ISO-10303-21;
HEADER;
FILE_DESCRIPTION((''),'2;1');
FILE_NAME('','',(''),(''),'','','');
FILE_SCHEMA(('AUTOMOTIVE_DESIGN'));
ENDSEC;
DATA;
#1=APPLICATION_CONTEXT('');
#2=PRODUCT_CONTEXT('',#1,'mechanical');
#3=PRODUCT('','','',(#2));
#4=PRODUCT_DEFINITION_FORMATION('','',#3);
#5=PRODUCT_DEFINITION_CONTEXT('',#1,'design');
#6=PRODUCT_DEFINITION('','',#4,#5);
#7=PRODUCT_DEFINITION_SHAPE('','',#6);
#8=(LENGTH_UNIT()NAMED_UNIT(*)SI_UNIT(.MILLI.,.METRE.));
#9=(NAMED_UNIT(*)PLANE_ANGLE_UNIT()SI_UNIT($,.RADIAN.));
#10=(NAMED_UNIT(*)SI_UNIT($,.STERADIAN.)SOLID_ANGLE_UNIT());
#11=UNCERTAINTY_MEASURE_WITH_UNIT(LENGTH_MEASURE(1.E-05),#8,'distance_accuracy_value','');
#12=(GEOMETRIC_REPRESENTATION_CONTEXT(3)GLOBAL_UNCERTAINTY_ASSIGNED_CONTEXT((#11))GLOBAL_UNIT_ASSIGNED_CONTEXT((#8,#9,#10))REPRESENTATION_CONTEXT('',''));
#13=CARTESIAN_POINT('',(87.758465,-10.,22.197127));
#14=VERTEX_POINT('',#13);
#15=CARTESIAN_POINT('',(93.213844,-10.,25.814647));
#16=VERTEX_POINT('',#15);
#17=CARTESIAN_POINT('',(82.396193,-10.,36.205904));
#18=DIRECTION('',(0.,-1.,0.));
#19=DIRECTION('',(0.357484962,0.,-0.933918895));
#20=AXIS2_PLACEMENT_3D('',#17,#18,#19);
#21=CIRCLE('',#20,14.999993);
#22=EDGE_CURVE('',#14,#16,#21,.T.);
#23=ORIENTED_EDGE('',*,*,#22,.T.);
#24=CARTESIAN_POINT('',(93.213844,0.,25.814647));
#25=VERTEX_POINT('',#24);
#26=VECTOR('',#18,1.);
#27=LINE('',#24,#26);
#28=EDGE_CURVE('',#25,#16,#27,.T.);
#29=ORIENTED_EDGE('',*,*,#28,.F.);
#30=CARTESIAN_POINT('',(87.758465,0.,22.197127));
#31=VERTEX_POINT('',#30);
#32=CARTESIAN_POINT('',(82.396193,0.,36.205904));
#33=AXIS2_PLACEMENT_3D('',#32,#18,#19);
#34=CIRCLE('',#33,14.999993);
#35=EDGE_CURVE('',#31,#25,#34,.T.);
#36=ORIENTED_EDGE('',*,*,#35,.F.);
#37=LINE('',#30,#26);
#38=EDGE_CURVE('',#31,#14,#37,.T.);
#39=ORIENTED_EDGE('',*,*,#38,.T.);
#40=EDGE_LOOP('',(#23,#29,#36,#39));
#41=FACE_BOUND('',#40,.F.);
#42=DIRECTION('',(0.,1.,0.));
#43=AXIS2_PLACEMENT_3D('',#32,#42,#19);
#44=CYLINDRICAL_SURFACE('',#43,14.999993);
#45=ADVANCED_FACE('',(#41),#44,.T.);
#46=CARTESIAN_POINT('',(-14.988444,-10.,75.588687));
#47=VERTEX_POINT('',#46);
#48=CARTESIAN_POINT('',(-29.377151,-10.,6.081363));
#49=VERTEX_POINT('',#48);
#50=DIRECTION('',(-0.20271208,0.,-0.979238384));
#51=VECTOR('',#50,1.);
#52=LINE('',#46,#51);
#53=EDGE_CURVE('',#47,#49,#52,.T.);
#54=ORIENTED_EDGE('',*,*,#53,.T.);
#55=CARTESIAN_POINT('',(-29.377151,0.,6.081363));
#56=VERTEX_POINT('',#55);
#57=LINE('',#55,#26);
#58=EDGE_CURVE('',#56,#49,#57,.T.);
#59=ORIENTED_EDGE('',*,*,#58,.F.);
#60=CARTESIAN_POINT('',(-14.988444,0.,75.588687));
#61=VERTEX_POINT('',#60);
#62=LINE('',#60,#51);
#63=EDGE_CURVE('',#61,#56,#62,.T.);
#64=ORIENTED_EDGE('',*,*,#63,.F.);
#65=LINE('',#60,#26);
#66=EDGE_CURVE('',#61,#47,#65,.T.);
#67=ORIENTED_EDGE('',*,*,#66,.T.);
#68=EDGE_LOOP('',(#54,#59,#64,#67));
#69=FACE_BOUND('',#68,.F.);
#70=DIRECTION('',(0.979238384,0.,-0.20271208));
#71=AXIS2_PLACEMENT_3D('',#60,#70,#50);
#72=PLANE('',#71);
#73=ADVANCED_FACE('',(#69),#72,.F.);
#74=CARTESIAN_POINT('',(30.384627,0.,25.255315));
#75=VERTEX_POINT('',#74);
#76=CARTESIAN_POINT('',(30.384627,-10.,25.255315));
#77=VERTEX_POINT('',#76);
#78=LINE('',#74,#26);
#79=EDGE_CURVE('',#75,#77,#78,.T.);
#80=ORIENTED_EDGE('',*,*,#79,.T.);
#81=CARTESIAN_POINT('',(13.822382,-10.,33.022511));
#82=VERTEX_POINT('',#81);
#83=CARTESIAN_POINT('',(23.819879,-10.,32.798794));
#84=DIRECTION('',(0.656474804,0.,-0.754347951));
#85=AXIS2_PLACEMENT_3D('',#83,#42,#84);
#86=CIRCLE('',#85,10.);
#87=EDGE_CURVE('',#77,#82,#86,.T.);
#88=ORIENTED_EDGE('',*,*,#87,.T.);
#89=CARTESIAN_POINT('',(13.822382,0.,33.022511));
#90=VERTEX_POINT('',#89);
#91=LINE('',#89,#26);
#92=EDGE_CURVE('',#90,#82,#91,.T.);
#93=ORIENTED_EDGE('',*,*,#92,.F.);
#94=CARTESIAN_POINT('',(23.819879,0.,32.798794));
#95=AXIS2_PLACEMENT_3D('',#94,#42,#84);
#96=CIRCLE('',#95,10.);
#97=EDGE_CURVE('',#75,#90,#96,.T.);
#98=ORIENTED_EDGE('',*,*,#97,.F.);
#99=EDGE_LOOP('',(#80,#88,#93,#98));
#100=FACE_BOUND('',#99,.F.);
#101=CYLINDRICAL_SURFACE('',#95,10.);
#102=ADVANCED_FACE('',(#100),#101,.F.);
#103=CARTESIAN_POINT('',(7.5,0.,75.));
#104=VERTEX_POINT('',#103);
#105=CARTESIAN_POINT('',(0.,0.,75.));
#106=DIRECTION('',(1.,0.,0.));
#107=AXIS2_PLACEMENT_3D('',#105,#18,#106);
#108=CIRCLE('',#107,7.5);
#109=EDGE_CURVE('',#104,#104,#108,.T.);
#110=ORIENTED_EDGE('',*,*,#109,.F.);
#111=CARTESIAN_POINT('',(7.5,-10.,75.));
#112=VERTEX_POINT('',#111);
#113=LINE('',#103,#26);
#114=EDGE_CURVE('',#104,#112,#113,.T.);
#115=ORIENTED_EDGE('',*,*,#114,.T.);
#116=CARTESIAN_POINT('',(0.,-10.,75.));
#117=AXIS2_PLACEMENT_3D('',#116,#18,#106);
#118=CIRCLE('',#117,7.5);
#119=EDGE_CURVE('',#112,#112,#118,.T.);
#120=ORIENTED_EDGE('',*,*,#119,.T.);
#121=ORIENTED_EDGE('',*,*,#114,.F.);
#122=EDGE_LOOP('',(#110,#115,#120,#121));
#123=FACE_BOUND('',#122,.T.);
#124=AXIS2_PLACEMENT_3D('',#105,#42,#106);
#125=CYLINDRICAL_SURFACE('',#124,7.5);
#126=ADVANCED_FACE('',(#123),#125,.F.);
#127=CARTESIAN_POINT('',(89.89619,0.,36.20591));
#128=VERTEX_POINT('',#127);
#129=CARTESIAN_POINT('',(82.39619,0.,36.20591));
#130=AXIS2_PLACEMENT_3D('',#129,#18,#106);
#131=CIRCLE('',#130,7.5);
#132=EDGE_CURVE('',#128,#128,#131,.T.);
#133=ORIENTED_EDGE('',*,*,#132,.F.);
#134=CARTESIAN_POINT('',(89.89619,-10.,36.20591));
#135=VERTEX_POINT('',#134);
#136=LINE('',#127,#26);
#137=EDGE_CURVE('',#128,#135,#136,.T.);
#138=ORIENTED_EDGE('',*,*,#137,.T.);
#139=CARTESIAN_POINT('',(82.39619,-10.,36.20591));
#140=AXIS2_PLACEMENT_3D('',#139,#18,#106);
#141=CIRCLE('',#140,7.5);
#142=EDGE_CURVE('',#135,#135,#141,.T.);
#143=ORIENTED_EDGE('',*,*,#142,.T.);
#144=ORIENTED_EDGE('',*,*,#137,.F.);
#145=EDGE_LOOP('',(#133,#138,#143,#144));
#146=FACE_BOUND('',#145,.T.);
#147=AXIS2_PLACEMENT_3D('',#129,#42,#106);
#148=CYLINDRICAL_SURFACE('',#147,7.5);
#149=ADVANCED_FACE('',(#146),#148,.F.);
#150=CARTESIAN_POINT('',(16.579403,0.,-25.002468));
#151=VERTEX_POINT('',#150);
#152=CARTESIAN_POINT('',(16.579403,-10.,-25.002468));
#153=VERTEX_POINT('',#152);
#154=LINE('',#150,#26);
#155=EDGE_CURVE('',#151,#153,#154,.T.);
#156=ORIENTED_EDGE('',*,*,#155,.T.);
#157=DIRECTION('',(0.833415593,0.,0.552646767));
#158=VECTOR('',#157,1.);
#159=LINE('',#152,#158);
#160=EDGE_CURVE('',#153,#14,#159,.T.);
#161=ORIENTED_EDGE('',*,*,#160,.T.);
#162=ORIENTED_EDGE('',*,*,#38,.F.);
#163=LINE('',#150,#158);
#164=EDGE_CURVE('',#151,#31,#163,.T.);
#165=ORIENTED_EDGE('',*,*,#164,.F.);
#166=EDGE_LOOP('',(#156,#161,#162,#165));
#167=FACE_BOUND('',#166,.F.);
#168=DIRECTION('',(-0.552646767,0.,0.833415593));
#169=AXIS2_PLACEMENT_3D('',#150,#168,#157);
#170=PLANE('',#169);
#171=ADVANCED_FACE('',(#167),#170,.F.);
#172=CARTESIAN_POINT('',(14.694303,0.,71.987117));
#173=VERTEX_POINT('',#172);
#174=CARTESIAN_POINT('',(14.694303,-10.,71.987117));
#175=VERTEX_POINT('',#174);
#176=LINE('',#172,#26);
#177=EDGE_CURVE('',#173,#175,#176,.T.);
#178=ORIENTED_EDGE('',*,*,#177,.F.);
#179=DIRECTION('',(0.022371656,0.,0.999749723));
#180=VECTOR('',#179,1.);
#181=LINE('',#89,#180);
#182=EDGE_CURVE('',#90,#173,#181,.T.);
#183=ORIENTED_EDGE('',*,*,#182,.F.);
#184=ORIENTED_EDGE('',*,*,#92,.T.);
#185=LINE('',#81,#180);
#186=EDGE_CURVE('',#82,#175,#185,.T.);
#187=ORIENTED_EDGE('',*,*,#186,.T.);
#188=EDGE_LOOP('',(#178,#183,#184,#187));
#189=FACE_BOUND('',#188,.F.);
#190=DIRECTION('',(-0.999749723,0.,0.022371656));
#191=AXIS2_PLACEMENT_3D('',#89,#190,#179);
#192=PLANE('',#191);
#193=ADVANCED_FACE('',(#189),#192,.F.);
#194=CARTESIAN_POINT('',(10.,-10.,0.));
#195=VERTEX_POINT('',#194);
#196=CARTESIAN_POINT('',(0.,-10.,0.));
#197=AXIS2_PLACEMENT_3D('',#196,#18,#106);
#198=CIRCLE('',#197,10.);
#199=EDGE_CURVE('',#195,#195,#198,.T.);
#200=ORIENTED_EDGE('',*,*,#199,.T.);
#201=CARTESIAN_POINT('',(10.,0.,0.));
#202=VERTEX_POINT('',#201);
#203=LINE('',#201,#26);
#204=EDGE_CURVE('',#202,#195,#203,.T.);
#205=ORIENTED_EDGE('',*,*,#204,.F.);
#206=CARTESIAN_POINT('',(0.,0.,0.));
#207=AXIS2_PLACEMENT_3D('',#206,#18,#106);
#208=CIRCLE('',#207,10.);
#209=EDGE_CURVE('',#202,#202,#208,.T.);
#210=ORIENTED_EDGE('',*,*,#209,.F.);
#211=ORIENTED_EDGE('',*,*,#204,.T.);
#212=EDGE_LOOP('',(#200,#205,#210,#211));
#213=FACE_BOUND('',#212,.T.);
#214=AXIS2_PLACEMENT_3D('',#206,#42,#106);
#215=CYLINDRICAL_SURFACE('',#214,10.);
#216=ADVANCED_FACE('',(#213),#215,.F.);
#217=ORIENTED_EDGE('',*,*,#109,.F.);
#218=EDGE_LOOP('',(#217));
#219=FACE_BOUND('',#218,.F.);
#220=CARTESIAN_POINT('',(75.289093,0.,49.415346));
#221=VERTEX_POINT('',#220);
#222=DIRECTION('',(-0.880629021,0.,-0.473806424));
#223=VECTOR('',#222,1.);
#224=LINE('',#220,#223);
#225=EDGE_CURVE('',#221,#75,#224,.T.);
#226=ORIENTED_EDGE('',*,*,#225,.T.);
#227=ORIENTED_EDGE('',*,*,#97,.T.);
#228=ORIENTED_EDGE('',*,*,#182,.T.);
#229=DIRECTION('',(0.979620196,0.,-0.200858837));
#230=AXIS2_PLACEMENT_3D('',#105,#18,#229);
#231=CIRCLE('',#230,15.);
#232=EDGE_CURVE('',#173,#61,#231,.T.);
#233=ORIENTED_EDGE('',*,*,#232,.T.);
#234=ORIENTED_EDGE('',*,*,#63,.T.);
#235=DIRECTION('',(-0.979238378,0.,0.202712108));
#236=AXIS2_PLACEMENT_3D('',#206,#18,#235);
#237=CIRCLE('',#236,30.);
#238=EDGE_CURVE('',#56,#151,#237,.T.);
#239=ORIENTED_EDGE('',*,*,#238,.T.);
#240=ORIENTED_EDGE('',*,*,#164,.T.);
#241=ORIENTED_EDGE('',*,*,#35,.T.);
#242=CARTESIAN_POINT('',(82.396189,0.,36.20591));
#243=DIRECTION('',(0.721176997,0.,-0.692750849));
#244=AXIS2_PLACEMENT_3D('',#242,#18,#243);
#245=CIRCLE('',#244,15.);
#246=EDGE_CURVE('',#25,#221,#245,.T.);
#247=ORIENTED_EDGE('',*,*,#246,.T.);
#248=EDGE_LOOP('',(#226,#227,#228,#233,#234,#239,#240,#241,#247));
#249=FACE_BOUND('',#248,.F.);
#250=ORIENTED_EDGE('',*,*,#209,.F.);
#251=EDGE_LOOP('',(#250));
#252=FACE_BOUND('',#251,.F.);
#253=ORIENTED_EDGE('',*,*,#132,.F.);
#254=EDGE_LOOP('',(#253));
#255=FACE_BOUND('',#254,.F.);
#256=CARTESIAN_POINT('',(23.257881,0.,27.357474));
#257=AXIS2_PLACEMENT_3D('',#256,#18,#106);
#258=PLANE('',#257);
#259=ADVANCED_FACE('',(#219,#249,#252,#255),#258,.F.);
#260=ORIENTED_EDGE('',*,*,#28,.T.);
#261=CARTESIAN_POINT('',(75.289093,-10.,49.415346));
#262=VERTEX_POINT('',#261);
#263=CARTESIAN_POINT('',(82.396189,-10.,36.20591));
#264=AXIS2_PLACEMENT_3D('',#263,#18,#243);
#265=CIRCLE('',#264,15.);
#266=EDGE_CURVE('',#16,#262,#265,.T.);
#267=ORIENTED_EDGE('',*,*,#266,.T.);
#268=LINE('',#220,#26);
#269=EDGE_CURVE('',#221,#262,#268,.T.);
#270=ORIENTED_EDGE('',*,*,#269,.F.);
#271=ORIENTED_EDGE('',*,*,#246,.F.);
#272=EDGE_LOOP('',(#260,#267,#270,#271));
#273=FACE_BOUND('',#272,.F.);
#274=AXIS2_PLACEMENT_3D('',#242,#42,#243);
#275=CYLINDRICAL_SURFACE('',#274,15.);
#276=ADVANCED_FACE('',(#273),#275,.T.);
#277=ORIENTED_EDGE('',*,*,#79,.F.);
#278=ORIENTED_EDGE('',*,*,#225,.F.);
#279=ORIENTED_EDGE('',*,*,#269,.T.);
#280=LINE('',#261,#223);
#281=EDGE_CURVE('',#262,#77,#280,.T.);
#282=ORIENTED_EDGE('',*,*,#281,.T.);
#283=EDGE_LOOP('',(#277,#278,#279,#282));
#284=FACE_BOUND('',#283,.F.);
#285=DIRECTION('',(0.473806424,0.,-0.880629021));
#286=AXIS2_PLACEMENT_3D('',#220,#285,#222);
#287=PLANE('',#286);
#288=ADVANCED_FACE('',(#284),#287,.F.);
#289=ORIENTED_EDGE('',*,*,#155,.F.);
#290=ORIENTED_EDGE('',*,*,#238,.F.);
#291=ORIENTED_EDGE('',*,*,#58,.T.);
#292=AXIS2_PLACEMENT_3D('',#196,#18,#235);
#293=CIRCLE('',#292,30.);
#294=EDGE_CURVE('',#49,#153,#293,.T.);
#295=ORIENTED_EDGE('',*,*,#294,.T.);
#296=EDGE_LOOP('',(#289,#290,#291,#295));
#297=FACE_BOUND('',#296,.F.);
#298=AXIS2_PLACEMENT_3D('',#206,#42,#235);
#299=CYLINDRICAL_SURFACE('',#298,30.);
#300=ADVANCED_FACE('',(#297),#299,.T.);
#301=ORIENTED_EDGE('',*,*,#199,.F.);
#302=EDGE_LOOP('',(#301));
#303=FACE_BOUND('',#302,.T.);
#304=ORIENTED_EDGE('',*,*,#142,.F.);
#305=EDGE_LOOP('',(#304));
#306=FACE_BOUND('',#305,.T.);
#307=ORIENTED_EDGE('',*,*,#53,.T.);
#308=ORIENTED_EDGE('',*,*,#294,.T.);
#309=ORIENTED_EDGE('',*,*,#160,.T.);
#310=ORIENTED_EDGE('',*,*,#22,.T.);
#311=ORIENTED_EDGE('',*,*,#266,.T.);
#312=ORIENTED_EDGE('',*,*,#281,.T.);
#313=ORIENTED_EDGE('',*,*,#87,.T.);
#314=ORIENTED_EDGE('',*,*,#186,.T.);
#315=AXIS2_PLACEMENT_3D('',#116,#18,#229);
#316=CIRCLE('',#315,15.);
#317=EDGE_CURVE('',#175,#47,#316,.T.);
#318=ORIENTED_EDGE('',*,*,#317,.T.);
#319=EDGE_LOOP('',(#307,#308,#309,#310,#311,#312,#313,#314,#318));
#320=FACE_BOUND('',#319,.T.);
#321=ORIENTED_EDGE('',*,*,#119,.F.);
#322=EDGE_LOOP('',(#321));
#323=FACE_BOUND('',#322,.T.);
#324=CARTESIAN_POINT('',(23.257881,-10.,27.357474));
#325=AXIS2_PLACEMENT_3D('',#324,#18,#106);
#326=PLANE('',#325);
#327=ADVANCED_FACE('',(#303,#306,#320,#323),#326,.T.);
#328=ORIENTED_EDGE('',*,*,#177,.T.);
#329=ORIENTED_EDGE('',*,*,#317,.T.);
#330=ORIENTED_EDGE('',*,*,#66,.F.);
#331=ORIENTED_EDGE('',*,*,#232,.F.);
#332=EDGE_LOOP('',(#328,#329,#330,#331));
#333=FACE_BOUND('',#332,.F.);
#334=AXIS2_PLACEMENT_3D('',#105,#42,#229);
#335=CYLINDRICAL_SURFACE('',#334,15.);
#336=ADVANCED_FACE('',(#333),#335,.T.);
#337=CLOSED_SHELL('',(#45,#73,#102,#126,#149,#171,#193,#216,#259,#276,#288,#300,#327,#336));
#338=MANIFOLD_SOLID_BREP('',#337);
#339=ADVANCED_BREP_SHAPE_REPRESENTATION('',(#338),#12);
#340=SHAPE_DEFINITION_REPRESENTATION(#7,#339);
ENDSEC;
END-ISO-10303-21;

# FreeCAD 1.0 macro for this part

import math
import FreeCAD as App
import Part
import Sketcher

V = App.Vector

doc = App.newDocument("Part")
body = doc.addObject("PartDesign::Body", "Body")

sketch1 = body.newObject("Sketcher::SketchObject", "Sketch")
sketch1.AttachmentSupport = (doc.getObject("XZ_Plane"), [""])
sketch1.MapMode = "FlatFace"
sketch1.addGeometry(Part.LineSegment(V(13.822382, 33.022511, 0), V(14.694303, 71.987117, 0)), False)
sketch1.addGeometry(Part.ArcOfCircle(Part.Circle(V(0, 75, 0), V(0, 0, 1), 15), math.radians(-11.587186), math.radians(177.750802)), False)
sketch1.addGeometry(Part.LineSegment(V(-14.988444, 75.588687, 0), V(-29.377151, 6.081363, 0)), False)
sketch1.addGeometry(Part.ArcOfCircle(Part.Circle(V(0, 0, 0), V(0, 0, 1), 30), math.radians(168.304399), math.radians(303.548782)), False)
sketch1.addGeometry(Part.LineSegment(V(16.579403, -25.002468, 0), V(87.758465, 22.197127, 0)), False)
sketch1.addGeometry(Part.ArcOfCircle(Part.Circle(V(82.396193, 36.205904, 0), V(0, 0, 1), 14.999993), math.radians(-69.054181), math.radians(-43.848254)), False)
sketch1.addGeometry(Part.ArcOfCircle(Part.Circle(V(82.396189, 36.20591, 0), V(0, 0, 1), 15), math.radians(-43.848259), math.radians(118.281662)), False)
sketch1.addGeometry(Part.LineSegment(V(75.289093, 49.415346, 0), V(30.384627, 25.255315, 0)), False)
sketch1.addGeometry(Part.ArcOfCircle(Part.Circle(V(23.819879, 32.798794, 0), V(0, 0, 1), 10), math.radians(178.718091), math.radians(311.031572)), False)
sketch1.addGeometry(Part.Circle(V(0, 0, 0), V(0, 0, 1), 10), False)
sketch1.addGeometry(Part.Circle(V(82.39619, 36.20591, 0), V(0, 0, 1), 7.5), False)
sketch1.addGeometry(Part.Circle(V(0, 75, 0), V(0, 0, 1), 7.5), False)
sketch1.addConstraint(Sketcher.Constraint("Coincident", 0, 2, 1, 1))
sketch1.addConstraint(Sketcher.Constraint("Coincident", 1, 2, 2, 1))
sketch1.addConstraint(Sketcher.Constraint("Coincident", 2, 2, 3, 1))
sketch1.addConstraint(Sketcher.Constraint("Coincident", 3, 2, 4, 1))
sketch1.addConstraint(Sketcher.Constraint("Coincident", 4, 2, 5, 1))
sketch1.addConstraint(Sketcher.Constraint("Coincident", 5, 2, 6, 1))
sketch1.addConstraint(Sketcher.Constraint("Coincident", 6, 2, 7, 1))
sketch1.addConstraint(Sketcher.Constraint("Coincident", 7, 2, 8, 2))
sketch1.addConstraint(Sketcher.Constraint("Coincident", 8, 1, 0, 1))
sketch1.addConstraint(Sketcher.Constraint("Coincident", 3, 3, -1, 1))
sketch1.addConstraint(Sketcher.Constraint("Coincident", 9, 3, -1, 1))
sketch1.addConstraint(Sketcher.Constraint("Coincident", 6, 3, 5, 3))
sketch1.addConstraint(Sketcher.Constraint("Coincident", 10, 3, 5, 3))
sketch1.addConstraint(Sketcher.Constraint("Coincident", 11, 3, 1, 3))
sketch1.addConstraint(Sketcher.Constraint("PointOnObject", 1, 3, -2))
sketch1.addConstraint(Sketcher.Constraint("Diameter", 9, 20.0))
sketch1.addConstraint(Sketcher.Constraint("Diameter", 10, 15.0))
sketch1.addConstraint(Sketcher.Constraint("Diameter", 11, 15.0))
sketch1.addConstraint(Sketcher.Constraint("Radius", 1, 15.0))
sketch1.addConstraint(Sketcher.Constraint("Radius", 3, 30.0))
sketch1.addConstraint(Sketcher.Constraint("Radius", 6, 15.0))
sketch1.addConstraint(Sketcher.Constraint("Radius", 8, 10.0))
sketch1.addConstraint(Sketcher.Constraint("DistanceY", -1, 1, 1, 3, 75.0))
sketch1.addConstraint(Sketcher.Constraint("DistanceX", 6, 2, 5, 3, 7.1071))
sketch1.addConstraint(Sketcher.Constraint("DistanceY", 5, 2, 6, 2, 23.600699))
sketch1.addConstraint(Sketcher.Constraint("Distance", 0, 38.97436))
sketch1.addConstraint(Sketcher.Constraint("DistanceX", -1, 1, 6, 3, 82.396189))
sketch1.addConstraint(Sketcher.Constraint("DistanceY", -1, 1, 6, 3, 36.20591))
sketch1.addConstraint(Sketcher.Constraint("DistanceX", -1, 1, 8, 3, 23.819879))
sketch1.addConstraint(Sketcher.Constraint("DistanceX", 2, 2, -1, 1, 29.377151))
sketch1.addConstraint(Sketcher.Constraint("DistanceY", 3, 2, -1, 1, 25.002468))
sketch1.addConstraint(Sketcher.Constraint("DistanceY", -1, 1, 8, 1, 33.022511))
sketch1.addConstraint(Sketcher.Constraint("DistanceY", 8, 3, 5, 3, 3.40711))
sketch1.addConstraint(Sketcher.Constraint("DistanceY", 0, 2, 1, 2, 3.60157))
sketch1.addConstraint(Sketcher.Constraint("DistanceX", 3, 2, 4, 2, 71.179062))
sketch1.addConstraint(Sketcher.Constraint("DistanceY", 7, 2, 8, 3, 7.543479))
pad1 = body.newObject("PartDesign::Pad", "Pad")
pad1.Profile = sketch1
pad1.Length = 10

doc.recompute()
